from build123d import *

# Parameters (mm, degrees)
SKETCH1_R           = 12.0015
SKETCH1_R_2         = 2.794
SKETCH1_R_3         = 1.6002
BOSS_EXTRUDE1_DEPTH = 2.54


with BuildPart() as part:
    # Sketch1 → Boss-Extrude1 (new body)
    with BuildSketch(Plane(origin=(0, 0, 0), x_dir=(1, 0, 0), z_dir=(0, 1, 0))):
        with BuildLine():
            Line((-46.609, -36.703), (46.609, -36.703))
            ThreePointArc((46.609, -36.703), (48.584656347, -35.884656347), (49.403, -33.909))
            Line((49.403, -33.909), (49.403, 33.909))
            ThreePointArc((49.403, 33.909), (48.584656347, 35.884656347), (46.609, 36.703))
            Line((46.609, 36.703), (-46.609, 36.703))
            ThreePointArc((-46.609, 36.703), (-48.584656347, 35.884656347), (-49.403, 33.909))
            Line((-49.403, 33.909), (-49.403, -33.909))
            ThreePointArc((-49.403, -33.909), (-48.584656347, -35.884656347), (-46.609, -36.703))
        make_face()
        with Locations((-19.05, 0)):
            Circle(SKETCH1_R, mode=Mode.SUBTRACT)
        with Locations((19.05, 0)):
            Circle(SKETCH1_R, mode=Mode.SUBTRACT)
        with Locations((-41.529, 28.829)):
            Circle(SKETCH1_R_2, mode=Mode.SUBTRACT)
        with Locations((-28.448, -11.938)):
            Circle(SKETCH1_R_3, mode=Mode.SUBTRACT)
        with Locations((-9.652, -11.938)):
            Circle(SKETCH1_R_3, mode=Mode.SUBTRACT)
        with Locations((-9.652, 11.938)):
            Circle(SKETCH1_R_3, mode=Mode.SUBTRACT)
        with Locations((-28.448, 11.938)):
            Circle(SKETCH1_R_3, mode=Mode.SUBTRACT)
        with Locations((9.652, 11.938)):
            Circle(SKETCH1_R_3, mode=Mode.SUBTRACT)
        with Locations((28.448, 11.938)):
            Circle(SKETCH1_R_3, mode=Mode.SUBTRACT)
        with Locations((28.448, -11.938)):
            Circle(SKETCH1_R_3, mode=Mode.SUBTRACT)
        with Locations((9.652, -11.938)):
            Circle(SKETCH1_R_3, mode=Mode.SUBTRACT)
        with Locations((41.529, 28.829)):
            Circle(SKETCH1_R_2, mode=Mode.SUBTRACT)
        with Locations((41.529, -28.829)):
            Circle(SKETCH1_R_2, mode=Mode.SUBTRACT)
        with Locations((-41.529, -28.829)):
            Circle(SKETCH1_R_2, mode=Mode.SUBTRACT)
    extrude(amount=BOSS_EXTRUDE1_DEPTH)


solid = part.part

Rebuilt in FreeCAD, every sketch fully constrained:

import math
import FreeCAD as App
import Part
import Sketcher
Q = App.Units.Quantity

doc = App.newDocument("Part")
params = doc.addObject("Spreadsheet::Sheet", "Params")
for row, (alias, value) in enumerate([
    ("sketch1_diameter", "0.22 in"),
    ("sketch1_diameter2", "0.126 in"),
    ("sketch1_diameter3", "0.945 in"),
    ("sketch1_width", "3.67 in"),
    ("sketch1_height", "2.67 in"),
    ("pad1_length", "0.1 in"),
], start=1):
    params.set(f"A{row}", alias)
    params.set(f"B{row}", "=" + value)
    params.setAlias(f"B{row}", alias)

body = doc.addObject("PartDesign::Body", "Body")

# Sketch on XZ plane
sketch1 = doc.addObject("Sketcher::SketchObject", "Sketch")
body.addObject(sketch1)
sketch1.AttachmentSupport = (doc.XZ_Plane, [""])
sketch1.MapMode = "FlatFace"
sketch1.addGeometry([
    Part.LineSegment(App.Vector(-46.6, 36.7, 0), App.Vector(46.6, 36.7, 0)),  # 0
    Part.ArcOfCircle(Part.Circle(App.Vector(46.6, 33.9, 0), App.Vector(0, 0, 1), 2.8), math.radians(0), math.radians(90)),  # 1
    Part.LineSegment(App.Vector(49.4, 33.9, 0), App.Vector(49.4, -33.9, 0)),  # 2
    Part.ArcOfCircle(Part.Circle(App.Vector(46.6, -33.9, 0), App.Vector(0, 0, 1), 2.8), math.radians(-90), math.radians(0)),  # 3
    Part.LineSegment(App.Vector(46.6, -36.7, 0), App.Vector(-46.6, -36.7, 0)),  # 4
    Part.ArcOfCircle(Part.Circle(App.Vector(-46.6, -33.9, 0), App.Vector(0, 0, 1), 2.8), math.radians(180), math.radians(270)),  # 5
    Part.LineSegment(App.Vector(-49.4, -33.9, 0), App.Vector(-49.4, 33.9, 0)),  # 6
    Part.ArcOfCircle(Part.Circle(App.Vector(-46.6, 33.9, 0), App.Vector(0, 0, 1), 2.8), math.radians(90), math.radians(180)),  # 7
    Part.Circle(App.Vector(-41.5, 28.8, 0), App.Vector(0, 0, 1), 2.8),  # 8
    Part.Circle(App.Vector(-28.4, 11.9, 0), App.Vector(0, 0, 1), 1.6),  # 9
    Part.Circle(App.Vector(-9.7, 11.9, 0), App.Vector(0, 0, 1), 1.6),  # 10
    Part.Circle(App.Vector(-19.1, 0, 0), App.Vector(0, 0, 1), 12),  # 11
    Part.Circle(App.Vector(41.5, 28.8, 0), App.Vector(0, 0, 1), 2.8),  # 12
    Part.Circle(App.Vector(9.7, 11.9, 0), App.Vector(0, 0, 1), 1.6),  # 13
    Part.Circle(App.Vector(19.1, 0, 0), App.Vector(0, 0, 1), 12),  # 14
    Part.Circle(App.Vector(28.4, 11.9, 0), App.Vector(0, 0, 1), 1.6),  # 15
    Part.Circle(App.Vector(-28.4, -11.9, 0), App.Vector(0, 0, 1), 1.6),  # 16
    Part.Circle(App.Vector(-9.7, -11.9, 0), App.Vector(0, 0, 1), 1.6),  # 17
    Part.Circle(App.Vector(-41.5, -28.8, 0), App.Vector(0, 0, 1), 2.8),  # 18
    Part.Circle(App.Vector(9.7, -11.9, 0), App.Vector(0, 0, 1), 1.6),  # 19
    Part.Circle(App.Vector(28.4, -11.9, 0), App.Vector(0, 0, 1), 1.6),  # 20
    Part.Circle(App.Vector(41.5, -28.8, 0), App.Vector(0, 0, 1), 2.8),  # 21
], False)
sketch1.addConstraint([
    Sketcher.Constraint("Tangent", 0, 2, 1, 2),
    Sketcher.Constraint("Tangent", 1, 1, 2, 1),
    Sketcher.Constraint("Tangent", 2, 2, 3, 2),
    Sketcher.Constraint("Tangent", 3, 1, 4, 1),
    Sketcher.Constraint("Tangent", 4, 2, 5, 2),
    Sketcher.Constraint("Tangent", 5, 1, 6, 1),
    Sketcher.Constraint("Tangent", 6, 2, 7, 2),
    Sketcher.Constraint("Tangent", 7, 1, 0, 1),
    Sketcher.Constraint("Horizontal", 0),
    Sketcher.Constraint("Vertical", 2),
    Sketcher.Constraint("Horizontal", 4),
    Sketcher.Constraint("Vertical", 6),
    Sketcher.Constraint("Equal", 1, 3),
    Sketcher.Constraint("Equal", 3, 5),
    Sketcher.Constraint("Equal", 5, 7),
    Sketcher.Constraint("Equal", 7, 8),
    Sketcher.Constraint("Equal", 9, 10),
    Sketcher.Constraint("Equal", 8, 12),
    Sketcher.Constraint("Equal", 10, 13),
    Sketcher.Constraint("Equal", 11, 14),
    Sketcher.Constraint("Equal", 13, 15),
    Sketcher.Constraint("Equal", 15, 16),
    Sketcher.Constraint("Equal", 16, 17),
    Sketcher.Constraint("Equal", 12, 18),
    Sketcher.Constraint("Equal", 17, 19),
    Sketcher.Constraint("Equal", 19, 20),
    Sketcher.Constraint("Equal", 18, 21),
    Sketcher.Constraint("Symmetric", 1, 3, 5, 3, -1, 1),
    Sketcher.Constraint("Symmetric", 11, 3, 14, 3, -1, 1),
    Sketcher.Constraint("Symmetric", 15, 3, 16, 3, -1, 1),
    Sketcher.Constraint("Symmetric", 13, 3, 17, 3, -1, 1),
    Sketcher.Constraint("Symmetric", 12, 3, 18, 3, -1, 1),
    Sketcher.Constraint("Symmetric", 10, 3, 19, 3, -1, 1),
    Sketcher.Constraint("Symmetric", 9, 3, 20, 3, -1, 1),
    Sketcher.Constraint("Symmetric", 8, 3, 21, 3, -1, 1),
    Sketcher.Constraint("Symmetric", 8, 3, 12, 3, -2),
    Sketcher.Constraint("Symmetric", 10, 3, 13, 3, -2),
    Sketcher.Constraint("Symmetric", 9, 3, 15, 3, -2),
    Sketcher.Constraint("PointOnObject", 11, 3, -1),
    Sketcher.Constraint("Horizontal", 9, 3, 10, 3),
    Sketcher.Constraint("Diameter", 8, Q("0.22 in")),
    Sketcher.Constraint("Diameter", 9, Q("0.126 in")),
    Sketcher.Constraint("Diameter", 11, Q("0.945 in")),
    Sketcher.Constraint("DistanceX", 0, 1, 0, 2, Q("3.67 in")),
    Sketcher.Constraint("DistanceY", 2, 2, 2, 1, Q("2.67 in")),
    Sketcher.Constraint("DistanceX", 7, 3, 8, 3, Q("0.2 in")),
    Sketcher.Constraint("DistanceY", 8, 3, 7, 3, Q("0.2 in")),
    Sketcher.Constraint("DistanceX", 9, 3, 13, 3, Q("1.5 in")),
    Sketcher.Constraint("DistanceX", 11, 3, 14, 3, Q("1.5 in")),
    Sketcher.Constraint("DistanceX", 9, 3, -1, 1, Q("1.12 in")),
    Sketcher.Constraint("DistanceY", -1, 1, 9, 3, Q("0.47 in")),
])
sketch1.setExpression("Constraints[40]", "Params.sketch1_diameter")
sketch1.setExpression("Constraints[41]", "Params.sketch1_diameter2")
sketch1.setExpression("Constraints[42]", "Params.sketch1_diameter3")
sketch1.setExpression("Constraints[43]", "Params.sketch1_width")
sketch1.setExpression("Constraints[44]", "Params.sketch1_height")
pad1 = doc.addObject("PartDesign::Pad", "Pad")
body.addObject(pad1)
pad1.Profile = sketch1
pad1.setExpression("Length", "Params.pad1_length")
pad1.Reversed = True

doc.recompute()
